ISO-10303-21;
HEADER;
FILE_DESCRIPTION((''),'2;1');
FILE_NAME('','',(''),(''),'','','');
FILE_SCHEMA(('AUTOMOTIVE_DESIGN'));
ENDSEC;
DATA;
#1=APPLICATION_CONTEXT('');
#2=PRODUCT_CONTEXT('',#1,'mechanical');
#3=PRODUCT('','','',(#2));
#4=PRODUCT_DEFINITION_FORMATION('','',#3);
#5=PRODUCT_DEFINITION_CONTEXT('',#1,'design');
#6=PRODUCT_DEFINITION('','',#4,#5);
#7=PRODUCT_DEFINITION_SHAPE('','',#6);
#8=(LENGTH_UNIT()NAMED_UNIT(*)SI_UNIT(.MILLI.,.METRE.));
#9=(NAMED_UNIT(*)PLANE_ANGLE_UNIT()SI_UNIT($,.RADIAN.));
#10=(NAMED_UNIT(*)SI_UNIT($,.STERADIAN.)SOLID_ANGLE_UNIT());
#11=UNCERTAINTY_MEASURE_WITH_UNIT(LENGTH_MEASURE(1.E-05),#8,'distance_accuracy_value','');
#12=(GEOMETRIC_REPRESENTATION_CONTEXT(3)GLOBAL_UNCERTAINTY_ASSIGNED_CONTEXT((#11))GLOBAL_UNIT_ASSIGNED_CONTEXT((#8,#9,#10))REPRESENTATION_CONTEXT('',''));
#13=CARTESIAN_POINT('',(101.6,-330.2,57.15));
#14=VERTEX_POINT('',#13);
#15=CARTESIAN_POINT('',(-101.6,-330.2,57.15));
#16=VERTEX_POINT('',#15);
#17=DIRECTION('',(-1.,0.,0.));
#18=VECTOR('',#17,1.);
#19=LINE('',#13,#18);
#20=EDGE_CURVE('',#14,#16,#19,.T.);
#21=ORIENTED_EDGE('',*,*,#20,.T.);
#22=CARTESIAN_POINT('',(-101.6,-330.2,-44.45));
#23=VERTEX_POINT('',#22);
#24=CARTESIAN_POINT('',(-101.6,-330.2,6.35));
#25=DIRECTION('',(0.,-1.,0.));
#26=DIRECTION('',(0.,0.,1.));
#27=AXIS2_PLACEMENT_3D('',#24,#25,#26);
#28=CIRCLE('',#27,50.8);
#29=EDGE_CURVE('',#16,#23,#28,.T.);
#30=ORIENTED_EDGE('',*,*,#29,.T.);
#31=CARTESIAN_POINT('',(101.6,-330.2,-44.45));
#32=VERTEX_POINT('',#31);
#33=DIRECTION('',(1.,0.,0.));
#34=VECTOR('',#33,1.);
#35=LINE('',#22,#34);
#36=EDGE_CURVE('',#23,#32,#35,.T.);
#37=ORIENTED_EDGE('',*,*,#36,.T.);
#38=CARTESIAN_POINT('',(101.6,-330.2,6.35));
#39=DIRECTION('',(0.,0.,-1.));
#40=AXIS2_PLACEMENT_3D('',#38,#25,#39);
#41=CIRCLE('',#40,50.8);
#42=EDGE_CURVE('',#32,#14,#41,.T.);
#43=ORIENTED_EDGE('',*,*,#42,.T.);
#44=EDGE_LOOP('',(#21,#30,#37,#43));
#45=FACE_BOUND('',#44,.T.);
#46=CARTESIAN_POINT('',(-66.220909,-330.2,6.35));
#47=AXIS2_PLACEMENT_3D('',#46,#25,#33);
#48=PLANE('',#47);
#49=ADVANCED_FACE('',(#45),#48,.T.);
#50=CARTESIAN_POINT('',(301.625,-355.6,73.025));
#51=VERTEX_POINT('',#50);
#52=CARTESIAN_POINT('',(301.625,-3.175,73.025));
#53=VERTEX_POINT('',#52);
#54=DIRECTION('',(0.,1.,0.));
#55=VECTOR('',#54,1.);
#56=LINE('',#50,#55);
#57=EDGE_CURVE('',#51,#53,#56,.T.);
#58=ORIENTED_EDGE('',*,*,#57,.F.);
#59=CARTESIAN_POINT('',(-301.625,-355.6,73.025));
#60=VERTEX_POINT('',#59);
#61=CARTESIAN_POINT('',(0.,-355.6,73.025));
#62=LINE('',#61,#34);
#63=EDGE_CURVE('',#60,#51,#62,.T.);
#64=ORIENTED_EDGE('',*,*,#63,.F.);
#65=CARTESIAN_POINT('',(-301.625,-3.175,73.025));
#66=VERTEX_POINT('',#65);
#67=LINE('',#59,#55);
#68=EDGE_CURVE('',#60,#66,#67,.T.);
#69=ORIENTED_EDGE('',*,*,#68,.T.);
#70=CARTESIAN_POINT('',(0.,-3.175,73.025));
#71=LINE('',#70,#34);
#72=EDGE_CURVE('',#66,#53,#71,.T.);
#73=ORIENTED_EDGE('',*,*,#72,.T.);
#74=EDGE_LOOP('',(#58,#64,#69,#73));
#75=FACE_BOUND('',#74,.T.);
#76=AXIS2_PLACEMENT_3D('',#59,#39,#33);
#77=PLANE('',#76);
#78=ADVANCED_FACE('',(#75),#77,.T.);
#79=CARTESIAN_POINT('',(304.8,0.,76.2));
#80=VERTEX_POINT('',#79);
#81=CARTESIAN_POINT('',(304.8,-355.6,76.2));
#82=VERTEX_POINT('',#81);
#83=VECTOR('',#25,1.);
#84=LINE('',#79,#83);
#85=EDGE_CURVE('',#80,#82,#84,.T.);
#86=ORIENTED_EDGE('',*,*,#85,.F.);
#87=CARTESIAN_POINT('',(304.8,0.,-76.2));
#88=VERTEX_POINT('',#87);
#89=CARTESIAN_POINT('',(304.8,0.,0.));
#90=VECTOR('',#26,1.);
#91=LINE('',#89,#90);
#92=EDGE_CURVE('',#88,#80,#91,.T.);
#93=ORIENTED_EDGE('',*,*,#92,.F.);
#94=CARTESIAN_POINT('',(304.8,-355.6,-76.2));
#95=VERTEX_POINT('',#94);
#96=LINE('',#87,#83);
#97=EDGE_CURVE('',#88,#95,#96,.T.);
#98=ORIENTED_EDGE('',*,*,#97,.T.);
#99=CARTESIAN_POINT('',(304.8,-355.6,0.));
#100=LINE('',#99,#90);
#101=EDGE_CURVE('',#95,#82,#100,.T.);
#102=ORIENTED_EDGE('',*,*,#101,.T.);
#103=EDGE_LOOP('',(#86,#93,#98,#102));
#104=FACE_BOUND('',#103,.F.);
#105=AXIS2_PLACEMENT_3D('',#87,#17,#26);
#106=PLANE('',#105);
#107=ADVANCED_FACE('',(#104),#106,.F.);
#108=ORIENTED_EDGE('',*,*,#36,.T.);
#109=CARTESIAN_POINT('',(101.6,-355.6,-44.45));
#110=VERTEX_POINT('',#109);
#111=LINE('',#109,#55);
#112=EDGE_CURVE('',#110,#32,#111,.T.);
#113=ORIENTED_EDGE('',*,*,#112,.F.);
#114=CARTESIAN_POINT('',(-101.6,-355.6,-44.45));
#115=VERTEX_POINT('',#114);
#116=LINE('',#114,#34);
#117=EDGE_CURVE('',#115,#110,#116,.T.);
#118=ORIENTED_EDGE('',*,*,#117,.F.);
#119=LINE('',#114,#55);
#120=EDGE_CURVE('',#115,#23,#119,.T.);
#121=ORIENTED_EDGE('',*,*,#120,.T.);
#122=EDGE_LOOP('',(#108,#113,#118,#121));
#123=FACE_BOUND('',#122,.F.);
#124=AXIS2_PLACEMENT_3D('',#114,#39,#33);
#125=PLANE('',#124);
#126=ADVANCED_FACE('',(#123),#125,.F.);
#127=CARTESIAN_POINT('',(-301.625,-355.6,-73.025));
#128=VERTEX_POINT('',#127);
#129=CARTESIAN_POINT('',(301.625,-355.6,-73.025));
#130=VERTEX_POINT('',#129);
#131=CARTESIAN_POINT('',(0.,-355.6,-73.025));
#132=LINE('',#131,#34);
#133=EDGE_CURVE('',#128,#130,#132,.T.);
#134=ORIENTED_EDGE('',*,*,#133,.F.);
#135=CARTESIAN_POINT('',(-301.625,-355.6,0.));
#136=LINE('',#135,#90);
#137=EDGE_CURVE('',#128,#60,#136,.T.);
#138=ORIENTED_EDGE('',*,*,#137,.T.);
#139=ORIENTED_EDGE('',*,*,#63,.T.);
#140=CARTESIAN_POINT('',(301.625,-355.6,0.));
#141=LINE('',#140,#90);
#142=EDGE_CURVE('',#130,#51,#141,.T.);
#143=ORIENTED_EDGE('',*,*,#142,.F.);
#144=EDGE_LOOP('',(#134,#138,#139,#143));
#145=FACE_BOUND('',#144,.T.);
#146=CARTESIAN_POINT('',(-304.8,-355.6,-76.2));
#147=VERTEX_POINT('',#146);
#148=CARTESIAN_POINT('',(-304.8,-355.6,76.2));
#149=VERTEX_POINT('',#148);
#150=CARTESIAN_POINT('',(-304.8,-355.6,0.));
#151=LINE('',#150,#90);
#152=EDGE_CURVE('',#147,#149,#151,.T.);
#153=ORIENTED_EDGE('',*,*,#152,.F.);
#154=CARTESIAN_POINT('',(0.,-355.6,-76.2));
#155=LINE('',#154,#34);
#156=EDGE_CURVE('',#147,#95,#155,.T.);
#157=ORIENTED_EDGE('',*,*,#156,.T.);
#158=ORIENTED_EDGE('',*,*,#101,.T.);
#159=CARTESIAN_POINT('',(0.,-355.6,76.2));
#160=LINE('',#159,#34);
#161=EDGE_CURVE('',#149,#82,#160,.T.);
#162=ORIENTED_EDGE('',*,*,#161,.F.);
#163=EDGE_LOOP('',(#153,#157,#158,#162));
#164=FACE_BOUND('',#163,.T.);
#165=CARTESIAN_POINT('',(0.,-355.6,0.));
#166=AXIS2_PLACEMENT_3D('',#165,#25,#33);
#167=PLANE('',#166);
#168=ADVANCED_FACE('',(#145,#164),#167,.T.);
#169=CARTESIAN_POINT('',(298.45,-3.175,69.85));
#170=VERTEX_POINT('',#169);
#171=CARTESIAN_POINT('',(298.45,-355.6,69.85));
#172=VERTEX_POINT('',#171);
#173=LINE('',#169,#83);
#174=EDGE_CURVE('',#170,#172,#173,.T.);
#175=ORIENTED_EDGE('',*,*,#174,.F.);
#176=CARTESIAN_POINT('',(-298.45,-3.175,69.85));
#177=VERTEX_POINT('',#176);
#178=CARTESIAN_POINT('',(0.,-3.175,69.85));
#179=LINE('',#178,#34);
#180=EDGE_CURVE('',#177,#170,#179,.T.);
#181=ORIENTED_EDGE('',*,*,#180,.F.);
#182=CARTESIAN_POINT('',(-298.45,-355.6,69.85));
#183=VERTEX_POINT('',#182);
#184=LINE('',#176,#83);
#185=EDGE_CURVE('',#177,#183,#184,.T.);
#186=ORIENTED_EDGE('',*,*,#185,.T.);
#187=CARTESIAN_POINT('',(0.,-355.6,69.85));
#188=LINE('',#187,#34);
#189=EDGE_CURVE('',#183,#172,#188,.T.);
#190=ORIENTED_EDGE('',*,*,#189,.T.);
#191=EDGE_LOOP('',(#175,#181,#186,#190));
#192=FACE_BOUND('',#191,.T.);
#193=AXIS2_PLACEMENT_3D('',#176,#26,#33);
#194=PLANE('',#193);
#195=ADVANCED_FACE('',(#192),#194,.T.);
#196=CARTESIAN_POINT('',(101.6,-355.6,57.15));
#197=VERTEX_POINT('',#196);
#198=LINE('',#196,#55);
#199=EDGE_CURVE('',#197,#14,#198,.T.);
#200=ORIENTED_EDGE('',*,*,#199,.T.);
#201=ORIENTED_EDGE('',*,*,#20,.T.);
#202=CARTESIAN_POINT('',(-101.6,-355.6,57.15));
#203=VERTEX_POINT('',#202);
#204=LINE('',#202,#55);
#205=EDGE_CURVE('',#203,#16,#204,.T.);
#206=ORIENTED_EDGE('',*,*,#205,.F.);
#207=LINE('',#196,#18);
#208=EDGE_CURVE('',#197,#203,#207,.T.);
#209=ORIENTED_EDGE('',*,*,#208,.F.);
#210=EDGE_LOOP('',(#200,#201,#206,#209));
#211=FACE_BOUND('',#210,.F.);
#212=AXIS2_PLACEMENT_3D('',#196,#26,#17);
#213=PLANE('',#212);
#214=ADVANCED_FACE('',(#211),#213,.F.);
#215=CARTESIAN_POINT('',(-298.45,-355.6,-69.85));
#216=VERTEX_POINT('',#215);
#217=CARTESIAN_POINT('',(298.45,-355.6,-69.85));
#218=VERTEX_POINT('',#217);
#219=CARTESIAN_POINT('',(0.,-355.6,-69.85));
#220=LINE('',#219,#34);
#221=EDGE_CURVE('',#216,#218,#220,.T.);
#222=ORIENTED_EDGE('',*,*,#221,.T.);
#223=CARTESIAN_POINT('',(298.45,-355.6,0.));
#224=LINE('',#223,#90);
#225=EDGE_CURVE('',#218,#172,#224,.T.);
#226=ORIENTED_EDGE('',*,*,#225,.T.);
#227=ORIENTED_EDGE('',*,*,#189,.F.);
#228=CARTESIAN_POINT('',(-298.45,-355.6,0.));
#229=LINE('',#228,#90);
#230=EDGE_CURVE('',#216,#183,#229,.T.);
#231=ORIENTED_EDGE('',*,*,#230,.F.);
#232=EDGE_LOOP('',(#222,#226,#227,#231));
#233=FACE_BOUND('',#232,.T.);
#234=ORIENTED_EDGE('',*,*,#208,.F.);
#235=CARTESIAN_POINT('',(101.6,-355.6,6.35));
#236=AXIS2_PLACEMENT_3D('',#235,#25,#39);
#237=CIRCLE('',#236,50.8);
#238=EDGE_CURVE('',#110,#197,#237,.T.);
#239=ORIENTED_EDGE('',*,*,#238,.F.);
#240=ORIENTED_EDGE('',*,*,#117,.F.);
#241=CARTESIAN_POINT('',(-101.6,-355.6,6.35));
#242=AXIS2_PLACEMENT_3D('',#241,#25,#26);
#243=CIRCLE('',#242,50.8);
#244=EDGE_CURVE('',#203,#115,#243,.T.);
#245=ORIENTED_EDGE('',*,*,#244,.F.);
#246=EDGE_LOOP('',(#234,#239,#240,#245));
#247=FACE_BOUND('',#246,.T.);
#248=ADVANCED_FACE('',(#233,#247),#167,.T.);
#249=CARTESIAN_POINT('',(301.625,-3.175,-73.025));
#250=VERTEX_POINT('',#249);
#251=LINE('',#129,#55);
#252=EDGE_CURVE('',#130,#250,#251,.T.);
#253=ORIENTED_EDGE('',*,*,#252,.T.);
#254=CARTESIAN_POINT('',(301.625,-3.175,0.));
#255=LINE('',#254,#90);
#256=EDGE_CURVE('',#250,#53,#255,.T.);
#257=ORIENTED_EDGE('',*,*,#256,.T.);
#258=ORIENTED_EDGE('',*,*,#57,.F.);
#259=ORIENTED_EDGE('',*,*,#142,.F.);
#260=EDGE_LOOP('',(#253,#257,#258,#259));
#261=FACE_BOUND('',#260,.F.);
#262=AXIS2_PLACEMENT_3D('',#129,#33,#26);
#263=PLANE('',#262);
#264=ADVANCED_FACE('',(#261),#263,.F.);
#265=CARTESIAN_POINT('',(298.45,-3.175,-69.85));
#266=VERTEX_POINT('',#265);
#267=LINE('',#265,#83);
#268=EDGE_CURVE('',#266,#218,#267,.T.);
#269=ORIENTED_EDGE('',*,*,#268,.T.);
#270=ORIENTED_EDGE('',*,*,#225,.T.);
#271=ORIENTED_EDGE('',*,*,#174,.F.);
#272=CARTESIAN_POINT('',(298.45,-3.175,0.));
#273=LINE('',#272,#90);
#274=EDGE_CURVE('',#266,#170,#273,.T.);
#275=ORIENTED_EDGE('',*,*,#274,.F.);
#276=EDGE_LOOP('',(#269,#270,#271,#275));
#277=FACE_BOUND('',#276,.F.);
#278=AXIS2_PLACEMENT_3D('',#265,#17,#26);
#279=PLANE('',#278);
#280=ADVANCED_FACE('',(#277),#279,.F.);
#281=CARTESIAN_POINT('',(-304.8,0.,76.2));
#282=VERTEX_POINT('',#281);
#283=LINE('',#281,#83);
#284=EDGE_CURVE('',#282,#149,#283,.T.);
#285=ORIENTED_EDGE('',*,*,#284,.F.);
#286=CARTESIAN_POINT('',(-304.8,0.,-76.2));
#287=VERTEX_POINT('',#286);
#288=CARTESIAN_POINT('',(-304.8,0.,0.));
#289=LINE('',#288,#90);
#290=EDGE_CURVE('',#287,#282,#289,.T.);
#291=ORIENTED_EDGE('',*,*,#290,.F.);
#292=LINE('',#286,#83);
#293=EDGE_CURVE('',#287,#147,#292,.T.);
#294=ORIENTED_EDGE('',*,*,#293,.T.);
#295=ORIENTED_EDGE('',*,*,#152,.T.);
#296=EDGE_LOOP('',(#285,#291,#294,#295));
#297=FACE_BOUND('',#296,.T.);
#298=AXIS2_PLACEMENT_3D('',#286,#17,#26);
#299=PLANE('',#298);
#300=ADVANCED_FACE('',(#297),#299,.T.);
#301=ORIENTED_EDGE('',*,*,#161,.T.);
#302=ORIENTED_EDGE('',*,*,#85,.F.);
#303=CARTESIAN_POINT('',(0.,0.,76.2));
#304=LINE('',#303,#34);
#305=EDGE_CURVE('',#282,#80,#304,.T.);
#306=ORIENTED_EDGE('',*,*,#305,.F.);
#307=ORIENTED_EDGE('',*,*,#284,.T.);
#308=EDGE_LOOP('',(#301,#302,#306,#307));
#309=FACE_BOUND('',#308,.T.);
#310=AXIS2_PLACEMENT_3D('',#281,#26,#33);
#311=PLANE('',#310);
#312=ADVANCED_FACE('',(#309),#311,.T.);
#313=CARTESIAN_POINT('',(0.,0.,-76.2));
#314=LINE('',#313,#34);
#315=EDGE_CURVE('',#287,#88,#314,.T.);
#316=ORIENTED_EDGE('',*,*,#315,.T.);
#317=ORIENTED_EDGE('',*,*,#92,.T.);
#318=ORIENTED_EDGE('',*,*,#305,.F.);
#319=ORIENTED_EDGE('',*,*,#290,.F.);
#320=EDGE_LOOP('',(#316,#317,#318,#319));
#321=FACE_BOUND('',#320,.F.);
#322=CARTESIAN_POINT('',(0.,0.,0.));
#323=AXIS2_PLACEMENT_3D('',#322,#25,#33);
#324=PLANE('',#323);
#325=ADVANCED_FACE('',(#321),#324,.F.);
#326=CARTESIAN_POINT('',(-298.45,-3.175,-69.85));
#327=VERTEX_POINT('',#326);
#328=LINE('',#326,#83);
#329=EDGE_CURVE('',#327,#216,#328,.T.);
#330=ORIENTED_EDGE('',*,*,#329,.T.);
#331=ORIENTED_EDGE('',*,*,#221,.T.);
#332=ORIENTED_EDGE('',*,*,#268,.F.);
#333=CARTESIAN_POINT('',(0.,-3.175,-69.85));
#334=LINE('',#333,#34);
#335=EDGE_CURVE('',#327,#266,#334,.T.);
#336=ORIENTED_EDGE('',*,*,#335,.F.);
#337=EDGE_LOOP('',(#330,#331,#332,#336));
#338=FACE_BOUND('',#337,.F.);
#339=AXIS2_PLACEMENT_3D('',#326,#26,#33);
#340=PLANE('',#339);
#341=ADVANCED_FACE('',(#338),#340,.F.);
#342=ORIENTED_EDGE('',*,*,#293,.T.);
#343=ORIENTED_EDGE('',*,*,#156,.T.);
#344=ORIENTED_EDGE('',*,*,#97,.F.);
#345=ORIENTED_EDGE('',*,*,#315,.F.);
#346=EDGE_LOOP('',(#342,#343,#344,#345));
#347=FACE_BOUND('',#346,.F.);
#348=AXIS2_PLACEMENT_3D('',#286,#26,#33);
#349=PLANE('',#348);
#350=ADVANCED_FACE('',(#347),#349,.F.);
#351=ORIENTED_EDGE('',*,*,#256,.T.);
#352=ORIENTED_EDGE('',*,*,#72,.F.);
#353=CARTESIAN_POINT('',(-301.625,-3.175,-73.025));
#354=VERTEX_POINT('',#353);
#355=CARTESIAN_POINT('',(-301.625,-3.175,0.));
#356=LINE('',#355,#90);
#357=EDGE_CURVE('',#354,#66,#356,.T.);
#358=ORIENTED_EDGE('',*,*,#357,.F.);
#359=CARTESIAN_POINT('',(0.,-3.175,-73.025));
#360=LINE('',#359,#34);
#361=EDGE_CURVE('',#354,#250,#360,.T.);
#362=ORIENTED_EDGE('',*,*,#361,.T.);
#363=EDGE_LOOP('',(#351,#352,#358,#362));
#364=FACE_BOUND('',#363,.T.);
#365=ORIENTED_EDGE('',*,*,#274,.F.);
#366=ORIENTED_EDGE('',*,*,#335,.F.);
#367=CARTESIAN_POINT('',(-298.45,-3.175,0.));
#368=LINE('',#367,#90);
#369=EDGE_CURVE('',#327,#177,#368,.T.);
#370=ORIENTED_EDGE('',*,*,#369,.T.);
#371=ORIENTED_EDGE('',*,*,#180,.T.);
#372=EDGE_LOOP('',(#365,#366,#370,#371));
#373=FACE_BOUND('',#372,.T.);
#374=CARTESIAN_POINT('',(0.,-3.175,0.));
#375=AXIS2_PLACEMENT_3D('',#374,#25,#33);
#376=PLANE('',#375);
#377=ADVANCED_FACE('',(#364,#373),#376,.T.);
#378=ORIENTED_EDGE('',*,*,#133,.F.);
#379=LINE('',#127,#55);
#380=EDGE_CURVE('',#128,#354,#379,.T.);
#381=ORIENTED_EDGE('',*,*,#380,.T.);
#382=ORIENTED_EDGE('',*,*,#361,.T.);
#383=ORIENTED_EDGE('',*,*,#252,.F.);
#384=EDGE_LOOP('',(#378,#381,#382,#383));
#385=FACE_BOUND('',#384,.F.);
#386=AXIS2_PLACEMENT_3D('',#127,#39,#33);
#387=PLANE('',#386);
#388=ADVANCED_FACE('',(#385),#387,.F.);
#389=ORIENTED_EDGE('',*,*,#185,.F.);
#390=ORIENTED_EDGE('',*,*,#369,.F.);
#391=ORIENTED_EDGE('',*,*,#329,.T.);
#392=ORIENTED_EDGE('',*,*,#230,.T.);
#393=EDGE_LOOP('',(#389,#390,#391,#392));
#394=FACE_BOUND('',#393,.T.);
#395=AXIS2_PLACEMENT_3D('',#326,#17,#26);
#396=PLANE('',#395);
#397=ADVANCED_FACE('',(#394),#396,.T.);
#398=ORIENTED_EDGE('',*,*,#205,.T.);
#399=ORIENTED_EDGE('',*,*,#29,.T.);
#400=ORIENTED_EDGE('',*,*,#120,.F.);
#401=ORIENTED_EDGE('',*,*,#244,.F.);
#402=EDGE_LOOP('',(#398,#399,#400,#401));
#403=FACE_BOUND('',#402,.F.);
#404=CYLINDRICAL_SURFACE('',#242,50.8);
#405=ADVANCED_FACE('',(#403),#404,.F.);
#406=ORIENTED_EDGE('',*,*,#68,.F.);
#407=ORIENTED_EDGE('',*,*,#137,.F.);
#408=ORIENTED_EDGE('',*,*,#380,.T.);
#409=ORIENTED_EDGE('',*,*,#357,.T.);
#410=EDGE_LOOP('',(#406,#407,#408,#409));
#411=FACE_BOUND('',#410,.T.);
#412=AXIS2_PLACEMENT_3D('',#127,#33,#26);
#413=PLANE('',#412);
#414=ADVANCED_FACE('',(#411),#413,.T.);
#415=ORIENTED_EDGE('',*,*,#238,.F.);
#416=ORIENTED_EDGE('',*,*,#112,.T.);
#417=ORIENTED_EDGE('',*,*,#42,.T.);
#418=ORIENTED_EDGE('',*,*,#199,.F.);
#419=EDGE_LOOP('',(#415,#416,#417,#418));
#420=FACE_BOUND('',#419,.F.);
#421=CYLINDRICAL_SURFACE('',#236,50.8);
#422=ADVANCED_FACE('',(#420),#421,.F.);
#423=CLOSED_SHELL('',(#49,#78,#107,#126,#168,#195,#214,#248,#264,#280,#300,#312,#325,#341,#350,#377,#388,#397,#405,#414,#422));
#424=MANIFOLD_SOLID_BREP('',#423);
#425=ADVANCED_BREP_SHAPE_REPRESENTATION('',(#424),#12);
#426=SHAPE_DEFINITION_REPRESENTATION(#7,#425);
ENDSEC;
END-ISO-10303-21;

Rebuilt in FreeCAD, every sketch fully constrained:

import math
import FreeCAD as App
import Part
import Sketcher
from FreeCAD import Vector
Q = App.Units.Quantity

doc = App.newDocument("Part")
params = doc.addObject("Spreadsheet::Sheet", "Params")
for row, (alias, value) in enumerate([
    ("sketch1_width", "24 in"),
    ("sketch1_height", "6 in"),
    ("pad1_length", "14 in"),
    ("sketch2_width", "23.75 in"),
    ("sketch2_height", "5.75 in"),
    ("pocket1_length", "13.875 in"),
    ("sketch3_width", "23.5 in"),
    ("sketch3_height", "5.5 in"),
    ("pad2_length", "13.875 in"),
    ("sketch4_radius", "2 in"),
    ("sketch4_width", "8 in"),
    ("pocket2_length", "1 in"),
], start=1):
    params.set(f"A{row}", alias)
    params.set(f"B{row}", "=" + value)
    params.setAlias(f"B{row}", alias)

body = doc.addObject("PartDesign::Body", "Body")

# Sketch on XZ plane
sketch1 = doc.addObject("Sketcher::SketchObject", "Sketch")
body.addObject(sketch1)
sketch1.AttachmentSupport = (doc.XZ_Plane, [""])
sketch1.MapMode = "FlatFace"
sketch1.addGeometry([
    Part.LineSegment(Vector(-304.8, 76.2, 0), Vector(-304.8, -76.2, 0)),
    Part.LineSegment(Vector(-304.8, -76.2, 0), Vector(304.8, -76.2, 0)),
    Part.LineSegment(Vector(304.8, -76.2, 0), Vector(304.8, 76.2, 0)),
    Part.LineSegment(Vector(304.8, 76.2, 0), Vector(-304.8, 76.2, 0)),
], False)
sketch1.addConstraint([
    Sketcher.Constraint("Coincident", 0, 2, 1, 1),
    Sketcher.Constraint("Coincident", 1, 2, 2, 1),
    Sketcher.Constraint("Coincident", 2, 2, 3, 1),
    Sketcher.Constraint("Coincident", 3, 2, 0, 1),
    Sketcher.Constraint("Vertical", 0),
    Sketcher.Constraint("Horizontal", 1),
    Sketcher.Constraint("Vertical", 2),
    Sketcher.Constraint("Horizontal", 3),
    Sketcher.Constraint("Symmetric", 0, 2, 2, 2, -1, 1),
    Sketcher.Constraint("DistanceX", 1, 1, 1, 2, Q("24 in")),
    Sketcher.Constraint("DistanceY", 0, 2, 0, 1, Q("6 in")),
])
sketch1.setExpression("Constraints[9]", "Params.sketch1_width")
sketch1.setExpression("Constraints[10]", "Params.sketch1_height")
pad1 = doc.addObject("PartDesign::Pad", "Pad")
body.addObject(pad1)
pad1.Profile = sketch1
pad1.setExpression("Length", "Params.pad1_length")

# Sketch on XZ plane
sketch2 = doc.addObject("Sketcher::SketchObject", "Sketch001")
body.addObject(sketch2)
sketch2.AttachmentSupport = (doc.XZ_Plane, [""])
sketch2.MapMode = "FlatFace"
sketch2.AttachmentOffset = App.Placement(Vector(0, 0, 14 * 25.4), App.Rotation())
sketch2.addGeometry([
    Part.LineSegment(Vector(-301.625, 73.025, 0), Vector(-301.625, -73.025, 0)),
    Part.LineSegment(Vector(-301.625, -73.025, 0), Vector(301.625, -73.025, 0)),
    Part.LineSegment(Vector(301.625, -73.025, 0), Vector(301.625, 73.025, 0)),
    Part.LineSegment(Vector(301.625, 73.025, 0), Vector(-301.625, 73.025, 0)),
], False)
sketch2.addConstraint([
    Sketcher.Constraint("Coincident", 0, 2, 1, 1),
    Sketcher.Constraint("Coincident", 1, 2, 2, 1),
    Sketcher.Constraint("Coincident", 2, 2, 3, 1),
    Sketcher.Constraint("Coincident", 3, 2, 0, 1),
    Sketcher.Constraint("Vertical", 0),
    Sketcher.Constraint("Horizontal", 1),
    Sketcher.Constraint("Vertical", 2),
    Sketcher.Constraint("Horizontal", 3),
    Sketcher.Constraint("Symmetric", 0, 2, 2, 2, -1, 1),
    Sketcher.Constraint("DistanceX", 1, 1, 1, 2, Q("23.75 in")),
    Sketcher.Constraint("DistanceY", 0, 2, 0, 1, Q("5.75 in")),
])
sketch2.setExpression("Constraints[9]", "Params.sketch2_width")
sketch2.setExpression("Constraints[10]", "Params.sketch2_height")
pocket1 = doc.addObject("PartDesign::Pocket", "Pocket")
body.addObject(pocket1)
pocket1.Profile = sketch2
pocket1.setExpression("Length", "Params.pocket1_length")

# Sketch on XZ plane
sketch3 = doc.addObject("Sketcher::SketchObject", "Sketch002")
body.addObject(sketch3)
sketch3.AttachmentSupport = (doc.XZ_Plane, [""])
sketch3.MapMode = "FlatFace"
sketch3.AttachmentOffset = App.Placement(Vector(0, 0, 0.125 * 25.4), App.Rotation())
sketch3.addGeometry([
    Part.LineSegment(Vector(-298.45, 69.85, 0), Vector(-298.45, -69.85, 0)),
    Part.LineSegment(Vector(-298.45, -69.85, 0), Vector(298.45, -69.85, 0)),
    Part.LineSegment(Vector(298.45, -69.85, 0), Vector(298.45, 69.85, 0)),
    Part.LineSegment(Vector(298.45, 69.85, 0), Vector(-298.45, 69.85, 0)),
], False)
sketch3.addConstraint([
    Sketcher.Constraint("Coincident", 0, 2, 1, 1),
    Sketcher.Constraint("Coincident", 1, 2, 2, 1),
    Sketcher.Constraint("Coincident", 2, 2, 3, 1),
    Sketcher.Constraint("Coincident", 3, 2, 0, 1),
    Sketcher.Constraint("Vertical", 0),
    Sketcher.Constraint("Horizontal", 1),
    Sketcher.Constraint("Vertical", 2),
    Sketcher.Constraint("Horizontal", 3),
    Sketcher.Constraint("Symmetric", 0, 2, 2, 2, -1, 1),
    Sketcher.Constraint("DistanceX", 1, 1, 1, 2, Q("23.5 in")),
    Sketcher.Constraint("DistanceY", 0, 2, 0, 1, Q("5.5 in")),
])
sketch3.setExpression("Constraints[9]", "Params.sketch3_width")
sketch3.setExpression("Constraints[10]", "Params.sketch3_height")
pad2 = doc.addObject("PartDesign::Pad", "Pad001")
body.addObject(pad2)
pad2.Profile = sketch3
pad2.setExpression("Length", "Params.pad2_length")

# Sketch on XZ plane
sketch4 = doc.addObject("Sketcher::SketchObject", "Sketch003")
body.addObject(sketch4)
sketch4.AttachmentSupport = (doc.XZ_Plane, [""])
sketch4.MapMode = "FlatFace"
sketch4.AttachmentOffset = App.Placement(Vector(0, 0, 14 * 25.4), App.Rotation())
sketch4.addGeometry([
    Part.ArcOfCircle(Part.Circle(Vector(-101.6, 6.35, 0), Vector(0, 0, 1), 50.8), math.radians(90), math.radians(270)),
    Part.LineSegment(Vector(-101.6, -44.45, 0), Vector(101.6, -44.45, 0)),
    Part.ArcOfCircle(Part.Circle(Vector(101.6, 6.35, 0), Vector(0, 0, 1), 50.8), math.radians(-90), math.radians(90)),
    Part.LineSegment(Vector(101.6, 57.15, 0), Vector(-101.6, 57.15, 0)),
], False)
sketch4.addConstraint([
    Sketcher.Constraint("Tangent", 0, 2, 1, 1),
    Sketcher.Constraint("Tangent", 1, 2, 2, 1),
    Sketcher.Constraint("Tangent", 2, 2, 3, 1),
    Sketcher.Constraint("Tangent", 3, 2, 0, 1),
    Sketcher.Constraint("Horizontal", 1),
    Sketcher.Constraint("Horizontal", 3),
    Sketcher.Constraint("Radius", 0, Q("2 in")),
    Sketcher.Constraint("DistanceX", 1, 1, 1, 2, Q("8 in")),
    Sketcher.Constraint("DistanceX", 0, 3, -1, 1, Q("4 in")),
    Sketcher.Constraint("DistanceY", -1, 1, 0, 3, Q("0.25 in")),
])
sketch4.setExpression("Constraints[6]", "Params.sketch4_radius")
sketch4.setExpression("Constraints[7]", "Params.sketch4_width")
pocket2 = doc.addObject("PartDesign::Pocket", "Pocket001")
body.addObject(pocket2)
pocket2.Profile = sketch4
pocket2.setExpression("Length", "Params.pocket2_length")

doc.recompute()
